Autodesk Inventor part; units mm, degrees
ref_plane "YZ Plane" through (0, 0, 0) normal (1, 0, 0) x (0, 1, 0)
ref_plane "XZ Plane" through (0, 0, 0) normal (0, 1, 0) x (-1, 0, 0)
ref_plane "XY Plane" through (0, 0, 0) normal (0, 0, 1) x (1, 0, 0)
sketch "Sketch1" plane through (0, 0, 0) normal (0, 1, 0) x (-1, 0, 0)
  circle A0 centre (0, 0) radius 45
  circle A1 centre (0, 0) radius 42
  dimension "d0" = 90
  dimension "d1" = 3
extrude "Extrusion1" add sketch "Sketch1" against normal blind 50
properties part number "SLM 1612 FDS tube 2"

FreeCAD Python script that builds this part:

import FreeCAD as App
import Part
import Sketcher

V = App.Vector
Q = App.Units.Quantity

doc = App.newDocument("Part")
body = doc.addObject("PartDesign::Body", "Body")

# Sketch on XZ plane
sketch1 = doc.addObject("Sketcher::SketchObject", "Sketch")
body.addObject(sketch1)
sketch1.AttachmentSupport = (doc.XZ_Plane, [""])
sketch1.MapMode = "FlatFace"
sketch1.addGeometry(Part.Circle(V(0, 0, 0), V(0, 0, 1), 45), False)
sketch1.addGeometry(Part.Circle(V(0, 0, 0), V(0, 0, 1), 42), False)
sketch1.addConstraint(Sketcher.Constraint("Coincident", 0, 3, -1, 1))
sketch1.addConstraint(Sketcher.Constraint("Coincident", 1, 3, -1, 1))
sketch1.addConstraint(Sketcher.Constraint("Diameter", 0, Q("90 mm")))
sketch1.addConstraint(Sketcher.Constraint("Diameter", 1, Q("84 mm")))
pad1 = doc.addObject("PartDesign::Pad", "Pad")
body.addObject(pad1)
pad1.Profile = sketch1
pad1.Length = 50

doc.recompute()
